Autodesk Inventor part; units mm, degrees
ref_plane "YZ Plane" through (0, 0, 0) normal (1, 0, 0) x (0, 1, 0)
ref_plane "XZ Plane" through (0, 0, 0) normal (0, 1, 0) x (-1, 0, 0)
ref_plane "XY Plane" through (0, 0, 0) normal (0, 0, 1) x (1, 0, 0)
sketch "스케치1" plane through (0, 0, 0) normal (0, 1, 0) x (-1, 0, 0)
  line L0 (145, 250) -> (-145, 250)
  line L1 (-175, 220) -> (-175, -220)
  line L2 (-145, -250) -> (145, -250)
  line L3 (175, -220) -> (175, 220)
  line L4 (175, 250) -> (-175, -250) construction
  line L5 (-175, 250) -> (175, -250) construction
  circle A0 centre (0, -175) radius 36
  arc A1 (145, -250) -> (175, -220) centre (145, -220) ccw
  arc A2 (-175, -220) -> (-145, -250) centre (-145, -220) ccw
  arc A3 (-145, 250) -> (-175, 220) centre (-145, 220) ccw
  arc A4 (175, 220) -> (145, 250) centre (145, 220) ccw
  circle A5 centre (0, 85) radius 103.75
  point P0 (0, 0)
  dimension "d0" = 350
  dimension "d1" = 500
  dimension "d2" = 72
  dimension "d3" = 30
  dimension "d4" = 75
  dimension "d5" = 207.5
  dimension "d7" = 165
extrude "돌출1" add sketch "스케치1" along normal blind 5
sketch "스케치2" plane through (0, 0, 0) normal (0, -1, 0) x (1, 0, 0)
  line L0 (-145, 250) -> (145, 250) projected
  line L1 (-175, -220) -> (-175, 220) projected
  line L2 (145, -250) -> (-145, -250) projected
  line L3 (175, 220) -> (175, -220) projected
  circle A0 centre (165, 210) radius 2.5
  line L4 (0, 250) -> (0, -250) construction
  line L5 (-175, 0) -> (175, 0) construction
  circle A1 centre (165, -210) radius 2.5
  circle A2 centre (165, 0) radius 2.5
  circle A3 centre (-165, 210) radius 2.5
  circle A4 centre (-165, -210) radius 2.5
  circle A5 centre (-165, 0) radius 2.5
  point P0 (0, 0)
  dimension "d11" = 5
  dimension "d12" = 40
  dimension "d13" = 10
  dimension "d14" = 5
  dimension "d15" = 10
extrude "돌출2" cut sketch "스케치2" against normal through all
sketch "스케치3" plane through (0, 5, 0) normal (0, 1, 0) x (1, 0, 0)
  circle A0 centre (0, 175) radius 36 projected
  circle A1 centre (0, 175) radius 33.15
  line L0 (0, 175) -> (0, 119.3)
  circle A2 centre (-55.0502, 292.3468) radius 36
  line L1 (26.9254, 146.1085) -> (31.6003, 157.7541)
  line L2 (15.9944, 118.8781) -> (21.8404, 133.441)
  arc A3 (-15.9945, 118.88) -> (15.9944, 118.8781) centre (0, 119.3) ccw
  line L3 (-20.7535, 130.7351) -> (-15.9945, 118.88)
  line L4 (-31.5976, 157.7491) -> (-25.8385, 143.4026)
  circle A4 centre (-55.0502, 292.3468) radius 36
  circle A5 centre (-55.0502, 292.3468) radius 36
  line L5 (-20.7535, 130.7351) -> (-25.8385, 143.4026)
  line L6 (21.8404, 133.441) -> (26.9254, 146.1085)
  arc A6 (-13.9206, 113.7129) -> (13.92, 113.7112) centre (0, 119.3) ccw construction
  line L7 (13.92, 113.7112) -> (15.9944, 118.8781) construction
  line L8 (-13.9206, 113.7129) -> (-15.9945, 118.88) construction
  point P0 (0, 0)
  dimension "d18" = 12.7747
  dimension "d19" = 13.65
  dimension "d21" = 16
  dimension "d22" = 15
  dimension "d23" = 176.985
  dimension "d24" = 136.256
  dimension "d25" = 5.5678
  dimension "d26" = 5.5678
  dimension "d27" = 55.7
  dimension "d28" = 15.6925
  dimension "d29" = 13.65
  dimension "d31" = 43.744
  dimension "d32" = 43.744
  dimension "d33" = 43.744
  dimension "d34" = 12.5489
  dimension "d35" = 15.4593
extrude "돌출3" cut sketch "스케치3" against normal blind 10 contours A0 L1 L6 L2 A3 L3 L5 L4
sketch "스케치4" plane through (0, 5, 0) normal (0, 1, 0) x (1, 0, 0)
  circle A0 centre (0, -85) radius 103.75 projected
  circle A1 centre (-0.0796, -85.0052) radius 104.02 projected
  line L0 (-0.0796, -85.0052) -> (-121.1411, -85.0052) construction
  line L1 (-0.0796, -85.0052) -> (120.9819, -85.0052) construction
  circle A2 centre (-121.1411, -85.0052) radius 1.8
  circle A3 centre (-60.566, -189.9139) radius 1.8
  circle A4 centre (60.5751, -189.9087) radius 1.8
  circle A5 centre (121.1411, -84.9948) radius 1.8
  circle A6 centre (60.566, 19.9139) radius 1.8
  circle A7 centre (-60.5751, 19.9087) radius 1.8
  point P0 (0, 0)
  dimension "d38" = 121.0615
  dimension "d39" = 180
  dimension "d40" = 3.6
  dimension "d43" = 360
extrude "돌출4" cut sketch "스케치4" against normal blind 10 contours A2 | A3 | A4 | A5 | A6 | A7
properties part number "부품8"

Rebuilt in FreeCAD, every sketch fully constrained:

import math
import FreeCAD as App
import Part
import Sketcher
from FreeCAD import Vector
Q = App.Units.Quantity

doc = App.newDocument("Part")
body = doc.addObject("PartDesign::Body", "Body")

sketch1 = body.newObject("Sketcher::SketchObject", "Sketch")
sketch1.AttachmentSupport = (doc.getObject("XZ_Plane"), [""])
sketch1.MapMode = "FlatFace"
sketch1.addGeometry([
    Part.ArcOfCircle(Part.Circle(Vector(-145, 220, 0), Vector(0, 0, 1), 30), math.radians(90), math.radians(180)),
    Part.LineSegment(Vector(-145, 250, 0), Vector(145, 250, 0)),
    Part.ArcOfCircle(Part.Circle(Vector(145, 220, 0), Vector(0, 0, 1), 30), math.radians(0), math.radians(90)),
    Part.LineSegment(Vector(175, 220, 0), Vector(175, -220, 0)),
    Part.ArcOfCircle(Part.Circle(Vector(145, -220, 0), Vector(0, 0, 1), 30), math.radians(-90), math.radians(0)),
    Part.LineSegment(Vector(145, -250, 0), Vector(-145, -250, 0)),
    Part.ArcOfCircle(Part.Circle(Vector(-145, -220, 0), Vector(0, 0, 1), 30), math.radians(180), math.radians(270)),
    Part.LineSegment(Vector(-175, -220, 0), Vector(-175, 220, 0)),
    Part.Circle(Vector(0, -175, 0), Vector(0, 0, 1), 36),
    Part.Circle(Vector(0, 85, 0), Vector(0, 0, 1), 104),
], False)
sketch1.addConstraint([
    Sketcher.Constraint("Tangent", 0, 1, 1, 1),
    Sketcher.Constraint("Tangent", 1, 2, 2, 2),
    Sketcher.Constraint("Tangent", 2, 1, 3, 1),
    Sketcher.Constraint("Tangent", 3, 2, 4, 2),
    Sketcher.Constraint("Tangent", 4, 1, 5, 1),
    Sketcher.Constraint("Tangent", 5, 2, 6, 2),
    Sketcher.Constraint("Tangent", 6, 1, 7, 1),
    Sketcher.Constraint("Tangent", 7, 2, 0, 2),
    Sketcher.Constraint("Horizontal", 1),
    Sketcher.Constraint("Vertical", 3),
    Sketcher.Constraint("Horizontal", 5),
    Sketcher.Constraint("Vertical", 7),
    Sketcher.Constraint("Equal", 0, 2),
    Sketcher.Constraint("Equal", 2, 4),
    Sketcher.Constraint("Equal", 4, 6),
    Sketcher.Constraint("Symmetric", 0, 3, 4, 3, -1, 1),
    Sketcher.Constraint("PointOnObject", 8, 3, -2),
    Sketcher.Constraint("PointOnObject", 9, 3, -2),
    Sketcher.Constraint("Diameter", 8, Q("72 mm")),
    Sketcher.Constraint("Radius", 0, Q("30 mm")),
    Sketcher.Constraint("Diameter", 9, Q("207.5 mm")),
    Sketcher.Constraint("DistanceY", 9, 3, 0, 1, Q("165 mm")),
    Sketcher.Constraint("DistanceY", 4, 1, 8, 3, Q("75 mm")),
    Sketcher.Constraint("DistanceX", 1, 1, 1, 2, Q("290 mm")),
    Sketcher.Constraint("DistanceY", 3, 2, 3, 1, Q("440 mm")),
])
pad1 = body.newObject("PartDesign::Pad", "Pad")
pad1.Profile = sketch1
pad1.Length = 5
pad1.Reversed = True

sketch2 = body.newObject("Sketcher::SketchObject", "Sketch001")
sketch2.AttachmentSupport = (doc.getObject("XZ_Plane"), [""])
sketch2.MapMode = "FlatFace"
sketch2.addGeometry([
    Part.Circle(Vector(165, 210, 0), Vector(0, 0, 1), 2.5),
    Part.Circle(Vector(165, -210, 0), Vector(0, 0, 1), 2.5),
    Part.Circle(Vector(165, 0, 0), Vector(0, 0, 1), 2.5),
    Part.Circle(Vector(-165, 210, 0), Vector(0, 0, 1), 2.5),
    Part.Circle(Vector(-165, -210, 0), Vector(0, 0, 1), 2.5),
    Part.Circle(Vector(-165, 0, 0), Vector(0, 0, 1), 2.5),
], False)
sketch2.addConstraint([
    Sketcher.Constraint("Equal", 0, 1),
    Sketcher.Constraint("Equal", 1, 2),
    Sketcher.Constraint("Equal", 2, 3),
    Sketcher.Constraint("Equal", 3, 4),
    Sketcher.Constraint("Equal", 4, 5),
    Sketcher.Constraint("Symmetric", 1, 3, 3, 3, -1, 1),
    Sketcher.Constraint("Symmetric", 0, 3, 4, 3, -1, 1),
    Sketcher.Constraint("Symmetric", 2, 3, 5, 3, -1, 1),
    Sketcher.Constraint("Symmetric", 0, 3, 3, 3, -2),
    Sketcher.Constraint("PointOnObject", 2, 3, -1),
    Sketcher.Constraint("Vertical", 1, 3, 2, 3),
    Sketcher.Constraint("Diameter", 0, Q("5 mm")),
    Sketcher.Constraint("DistanceX", -1, 1, 0, 3, Q("165 mm")),
    Sketcher.Constraint("DistanceY", -1, 1, 0, 3, Q("210 mm")),
])
pocket1 = body.newObject("PartDesign::Pocket", "Pocket")
pocket1.Profile = sketch2
pocket1.Type = "ThroughAll"

sketch3 = body.newObject("Sketcher::SketchObject", "Sketch002")
sketch3.AttachmentSupport = (doc.getObject("XZ_Plane"), [""])
sketch3.MapMode = "FlatFace"
sketch3.AttachmentOffset = App.Placement(Vector(0, 0, -5), App.Rotation())
sketch3.addGeometry([
    Part.ArcOfCircle(Part.Circle(Vector(0, -175, 0), Vector(0, 0, 1), 36), math.radians(29), math.radians(151)),
    Part.LineSegment(Vector(-32, -158, 0), Vector(-26, -143, 0)),
    Part.LineSegment(Vector(-26, -143, 0), Vector(-21, -131, 0)),
    Part.LineSegment(Vector(-21, -131, 0), Vector(-16, -119, 0)),
    Part.ArcOfCircle(Part.Circle(Vector(0, -119, 0), Vector(0, 0, 1), 16), math.radians(2), math.radians(178)),
    Part.LineSegment(Vector(16, -119, 0), Vector(22, -133, 0)),
    Part.LineSegment(Vector(22, -133, 0), Vector(27, -146, 0)),
    Part.LineSegment(Vector(27, -146, 0), Vector(32, -158, 0)),
], False)
sketch3.addConstraint([
    Sketcher.Constraint("Coincident", 0, 2, 1, 1),
    Sketcher.Constraint("Coincident", 1, 2, 2, 1),
    Sketcher.Constraint("Coincident", 2, 2, 3, 1),
    Sketcher.Constraint("Coincident", 3, 2, 4, 2),
    Sketcher.Constraint("Coincident", 4, 1, 5, 1),
    Sketcher.Constraint("Coincident", 5, 2, 6, 1),
    Sketcher.Constraint("Coincident", 6, 2, 7, 1),
    Sketcher.Constraint("Coincident", 7, 2, 0, 1),
    Sketcher.Constraint("PointOnObject", 0, 3, -2),
    Sketcher.Constraint("PointOnObject", 4, 3, -2),
    Sketcher.Constraint("Parallel", 1, 2),
    Sketcher.Constraint("Parallel", 2, 3),
    Sketcher.Constraint("Parallel", 5, 6),
    Sketcher.Constraint("Parallel", 6, 7),
    Sketcher.Constraint("Equal", 2, 6),
    Sketcher.Constraint("Radius", 4, Q("16 mm")),
    Sketcher.Constraint("Radius", 0, Q("36 mm")),
    Sketcher.Constraint("DistanceY", 0, 3, 4, 3, Q("55.7 mm")),
    Sketcher.Constraint("Distance", 2, Q("13.65 mm")),
    Sketcher.Constraint("Distance", 7, Q("12.549 mm")),
    Sketcher.Constraint("DistanceY", 0, 3, -1, 1, Q("175 mm")),
    Sketcher.Constraint("Distance", 1, Q("15.4593 mm")),
    Sketcher.Constraint("Distance", 3, Q("12.7746 mm")),
    Sketcher.Constraint("Distance", 5, Q("15.6925 mm")),
    Sketcher.Constraint("DistanceY", 3, 2, -1, 1, Q("118.88 mm")),
    Sketcher.Constraint("DistanceX", 5, 2, 7, 2, Q("9.76 mm")),
])
pocket2 = body.newObject("PartDesign::Pocket", "Pocket001")
pocket2.Profile = sketch3
pocket2.Length = 10
pocket2.Reversed = True

sketch4 = body.newObject("Sketcher::SketchObject", "Sketch003")
sketch4.AttachmentSupport = (doc.getObject("XZ_Plane"), [""])
sketch4.MapMode = "FlatFace"
sketch4.AttachmentOffset = App.Placement(Vector(0, 0, -5), App.Rotation())
sketch4.addGeometry([
    Part.Circle(Vector(-121.1, 85, 0), Vector(0, 0, 1), 1.8),
    Part.Circle(Vector(-60.6, 189.9, 0), Vector(0, 0, 1), 1.8),
    Part.Circle(Vector(60.6, 189.9, 0), Vector(0, 0, 1), 1.8),
    Part.Circle(Vector(121.1, 85, 0), Vector(0, 0, 1), 1.8),
    Part.Circle(Vector(60.6, -19.9, 0), Vector(0, 0, 1), 1.8),
    Part.Circle(Vector(-60.6, -19.9, 0), Vector(0, 0, 1), 1.8),
], False)
sketch4.addConstraint([
    Sketcher.Constraint("Equal", 0, 1),
    Sketcher.Constraint("Equal", 1, 2),
    Sketcher.Constraint("Equal", 2, 3),
    Sketcher.Constraint("Equal", 3, 4),
    Sketcher.Constraint("Equal", 4, 5),
    Sketcher.Constraint("Diameter", 0, Q("3.6 mm")),
    Sketcher.Constraint("DistanceX", 0, 3, -1, 1, Q("121.141 mm")),
    Sketcher.Constraint("DistanceX", 1, 3, -1, 1, Q("60.566 mm")),
    Sketcher.Constraint("DistanceY", -1, 1, 1, 3, Q("189.914 mm")),
    Sketcher.Constraint("DistanceX", -1, 1, 2, 3, Q("60.575 mm")),
    Sketcher.Constraint("DistanceX", -1, 1, 3, 3, Q("121.141 mm")),
    Sketcher.Constraint("DistanceX", -1, 1, 4, 3, Q("60.566 mm")),
    Sketcher.Constraint("DistanceY", 4, 3, -1, 1, Q("19.914 mm")),
    Sketcher.Constraint("DistanceX", 5, 3, -1, 1, Q("60.575 mm")),
    Sketcher.Constraint("DistanceY", 3, 3, 2, 3, Q("104.914 mm")),
    Sketcher.Constraint("DistanceY", 3, 3, 1, 3, Q("104.919 mm")),
    Sketcher.Constraint("DistanceY", 4, 3, 0, 3, Q("104.919 mm")),
    Sketcher.Constraint("DistanceY", 5, 3, 0, 3, Q("104.914 mm")),
])
pocket3 = body.newObject("PartDesign::Pocket", "Pocket002")
pocket3.Profile = sketch4
pocket3.Length = 10
pocket3.Reversed = True

doc.recompute()
